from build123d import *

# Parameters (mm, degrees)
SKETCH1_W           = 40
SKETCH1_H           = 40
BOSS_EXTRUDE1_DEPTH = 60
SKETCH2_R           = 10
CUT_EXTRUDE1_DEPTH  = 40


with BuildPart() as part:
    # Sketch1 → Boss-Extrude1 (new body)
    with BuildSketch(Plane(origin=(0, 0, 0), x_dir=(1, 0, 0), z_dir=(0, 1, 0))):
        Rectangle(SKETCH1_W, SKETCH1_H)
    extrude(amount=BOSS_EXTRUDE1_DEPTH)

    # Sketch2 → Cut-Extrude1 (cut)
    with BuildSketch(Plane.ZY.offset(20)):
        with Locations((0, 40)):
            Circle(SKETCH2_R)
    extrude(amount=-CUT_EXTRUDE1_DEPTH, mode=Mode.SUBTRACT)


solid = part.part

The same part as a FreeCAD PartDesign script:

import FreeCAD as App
import Part
import Sketcher

V = App.Vector
Q = App.Units.Quantity


def add_polygon(sketch, points):
    """Adds a closed chain of lines whose ends are joined by coincident constraints."""
    first, n = sketch.GeometryCount, len(points)
    for a, b in zip(points, points[1:] + points[:1]):
        sketch.addGeometry(Part.LineSegment(App.Vector(*a, 0), App.Vector(*b, 0)), False)
    for i in range(n):
        sketch.addConstraint(Sketcher.Constraint("Coincident", first + i, 2, first + (i + 1) % n, 1))

doc = App.newDocument("Part")
params = doc.addObject("Spreadsheet::Sheet", "Params")
for row, (alias, value) in enumerate([
    ("sketch1_width", "40 mm"),
    ("pad1_length", "60 mm"),
    ("sketch2_diameter", "20 mm"),
    ("pocket1_length", "40 mm"),
], start=1):
    params.set(f"A{row}", alias)
    params.set(f"B{row}", "=" + value)
    params.setAlias(f"B{row}", alias)

body = doc.addObject("PartDesign::Body", "Body")

sketch1 = doc.addObject("Sketcher::SketchObject", "Sketch")
body.addObject(sketch1)
sketch1.AttachmentSupport = (doc.XZ_Plane, [""])
sketch1.MapMode = "FlatFace"
add_polygon(sketch1, [(-20, -20), (-20, 20), (20, 20), (20, -20)])
sketch1.addConstraint(Sketcher.Constraint("Vertical", 0))
sketch1.addConstraint(Sketcher.Constraint("Horizontal", 1))
sketch1.addConstraint(Sketcher.Constraint("Vertical", 2))
sketch1.addConstraint(Sketcher.Constraint("Horizontal", 3))
sketch1.addConstraint(Sketcher.Constraint("Symmetric", 0, 2, 2, 2, -1, 1))
sketch1.addConstraint(Sketcher.Constraint("Equal", 3, 0))
sketch1.addConstraint(Sketcher.Constraint("DistanceX", 1, 1, 1, 2, Q("40 mm")))
sketch1.setExpression("Constraints[10]", "Params.sketch1_width")
pad1 = doc.addObject("PartDesign::Pad", "Pad")
body.addObject(pad1)
pad1.Profile = sketch1
pad1.setExpression("Length", "Params.pad1_length")
pad1.Reversed = True

sketch2 = doc.addObject("Sketcher::SketchObject", "Sketch001")
body.addObject(sketch2)
sketch2.AttachmentSupport = (doc.YZ_Plane, [""])
sketch2.MapMode = "FlatFace"
sketch2.AttachmentOffset = App.Placement(V(0, 0, -20), App.Rotation())
sketch2.addGeometry(Part.Circle(V(40, 0, 0), V(0, 0, 1), 10), False)
sketch2.addConstraint(Sketcher.Constraint("PointOnObject", 0, 3, -1))
sketch2.addConstraint(Sketcher.Constraint("Diameter", 0, Q("20 mm")))
sketch2.addConstraint(Sketcher.Constraint("DistanceX", -1, 1, 0, 3, Q("40 mm")))
sketch2.setExpression("Constraints[1]", "Params.sketch2_diameter")
pocket1 = doc.addObject("PartDesign::Pocket", "Pocket")
body.addObject(pocket1)
pocket1.Profile = sketch2
pocket1.setExpression("Length", "Params.pocket1_length")
pocket1.Reversed = True

doc.recompute()
